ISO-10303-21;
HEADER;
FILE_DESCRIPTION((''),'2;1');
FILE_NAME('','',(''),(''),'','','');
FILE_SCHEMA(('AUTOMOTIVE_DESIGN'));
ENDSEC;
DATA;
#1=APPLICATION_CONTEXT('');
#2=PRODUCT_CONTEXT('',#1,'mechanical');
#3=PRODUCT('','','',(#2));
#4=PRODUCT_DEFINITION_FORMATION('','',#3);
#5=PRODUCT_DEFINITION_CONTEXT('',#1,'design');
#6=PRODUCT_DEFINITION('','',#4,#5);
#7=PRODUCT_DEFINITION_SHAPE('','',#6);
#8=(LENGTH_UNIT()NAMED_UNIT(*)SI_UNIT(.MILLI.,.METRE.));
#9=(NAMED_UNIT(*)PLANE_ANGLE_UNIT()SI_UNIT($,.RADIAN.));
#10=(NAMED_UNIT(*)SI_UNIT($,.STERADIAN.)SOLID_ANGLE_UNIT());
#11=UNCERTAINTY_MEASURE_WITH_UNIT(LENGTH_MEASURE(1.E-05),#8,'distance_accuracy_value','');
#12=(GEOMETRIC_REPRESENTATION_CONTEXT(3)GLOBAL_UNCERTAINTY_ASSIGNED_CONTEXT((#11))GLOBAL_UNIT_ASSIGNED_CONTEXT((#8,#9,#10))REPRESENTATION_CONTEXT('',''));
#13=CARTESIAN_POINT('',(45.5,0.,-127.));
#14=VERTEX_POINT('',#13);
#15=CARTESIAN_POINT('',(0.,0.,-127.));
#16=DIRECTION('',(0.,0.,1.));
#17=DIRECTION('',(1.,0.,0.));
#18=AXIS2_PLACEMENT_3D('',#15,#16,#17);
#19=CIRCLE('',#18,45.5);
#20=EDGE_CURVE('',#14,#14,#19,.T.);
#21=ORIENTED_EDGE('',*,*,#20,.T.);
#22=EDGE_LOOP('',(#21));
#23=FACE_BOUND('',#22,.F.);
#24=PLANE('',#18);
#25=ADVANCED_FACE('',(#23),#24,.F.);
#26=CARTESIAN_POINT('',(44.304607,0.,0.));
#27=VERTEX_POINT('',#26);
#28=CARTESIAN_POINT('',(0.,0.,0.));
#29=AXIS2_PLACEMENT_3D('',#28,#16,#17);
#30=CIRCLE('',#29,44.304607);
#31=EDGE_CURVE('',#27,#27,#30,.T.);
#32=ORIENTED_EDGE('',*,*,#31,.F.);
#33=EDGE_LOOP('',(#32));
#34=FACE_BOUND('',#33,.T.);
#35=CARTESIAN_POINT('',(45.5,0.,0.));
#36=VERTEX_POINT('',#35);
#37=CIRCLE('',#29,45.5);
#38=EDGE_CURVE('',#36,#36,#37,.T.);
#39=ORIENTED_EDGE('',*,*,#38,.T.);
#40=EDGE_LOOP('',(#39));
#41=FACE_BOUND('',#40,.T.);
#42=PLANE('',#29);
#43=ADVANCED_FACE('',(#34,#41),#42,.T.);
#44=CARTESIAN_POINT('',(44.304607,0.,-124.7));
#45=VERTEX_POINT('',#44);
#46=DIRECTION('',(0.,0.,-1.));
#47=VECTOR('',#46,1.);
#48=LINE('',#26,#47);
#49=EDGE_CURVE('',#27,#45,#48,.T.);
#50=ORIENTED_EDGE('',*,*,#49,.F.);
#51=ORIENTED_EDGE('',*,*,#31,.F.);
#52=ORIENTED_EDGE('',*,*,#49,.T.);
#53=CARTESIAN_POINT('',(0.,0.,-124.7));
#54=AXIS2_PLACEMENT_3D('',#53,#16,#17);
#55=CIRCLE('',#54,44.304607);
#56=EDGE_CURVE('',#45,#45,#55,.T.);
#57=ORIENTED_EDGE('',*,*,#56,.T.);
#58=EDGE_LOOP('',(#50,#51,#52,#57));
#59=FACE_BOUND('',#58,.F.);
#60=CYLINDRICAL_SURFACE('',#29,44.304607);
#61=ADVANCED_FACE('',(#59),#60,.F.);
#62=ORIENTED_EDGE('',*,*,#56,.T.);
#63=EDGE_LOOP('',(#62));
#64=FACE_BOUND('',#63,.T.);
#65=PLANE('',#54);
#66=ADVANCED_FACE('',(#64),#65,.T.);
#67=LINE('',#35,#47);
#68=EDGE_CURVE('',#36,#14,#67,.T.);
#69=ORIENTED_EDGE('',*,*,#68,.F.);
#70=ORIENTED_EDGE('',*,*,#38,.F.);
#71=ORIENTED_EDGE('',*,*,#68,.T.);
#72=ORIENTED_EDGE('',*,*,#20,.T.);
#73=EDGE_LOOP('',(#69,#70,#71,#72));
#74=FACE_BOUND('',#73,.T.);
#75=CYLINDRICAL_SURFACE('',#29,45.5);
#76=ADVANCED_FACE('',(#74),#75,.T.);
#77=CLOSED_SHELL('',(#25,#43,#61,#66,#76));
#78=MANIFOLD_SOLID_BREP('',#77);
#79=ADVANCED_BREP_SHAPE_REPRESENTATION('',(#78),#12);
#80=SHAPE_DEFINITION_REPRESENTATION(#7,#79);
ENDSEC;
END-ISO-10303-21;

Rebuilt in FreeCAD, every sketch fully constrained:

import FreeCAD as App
import Part
import Sketcher
Q = App.Units.Quantity

doc = App.newDocument("Part")
params = doc.addObject("Spreadsheet::Sheet", "Params")
for row, (alias, value) in enumerate([
    ("sketch1_diameter", "91 mm"),
    ("pad1_length", "127 mm"),
    ("pocket1_length", "124.7 mm"),
], start=1):
    params.set(f"A{row}", alias)
    params.set(f"B{row}", "=" + value)
    params.setAlias(f"B{row}", alias)

body = doc.addObject("PartDesign::Body", "Body")

# Sketch on XY plane
sketch1 = body.newObject("Sketcher::SketchObject", "Sketch")
sketch1.AttachmentSupport = (doc.getObject("XY_Plane"), [""])
sketch1.MapMode = "FlatFace"
sketch1.addGeometry(Part.Circle(App.Vector(0, 0, 0), App.Vector(0, 0, 1), 45.5), False)
sketch1.addConstraint([
    Sketcher.Constraint("Coincident", 0, 3, -1, 1),
    Sketcher.Constraint("Diameter", 0, Q("91 mm")),
])
sketch1.setExpression("Constraints[1]", "Params.sketch1_diameter")
pad1 = body.newObject("PartDesign::Pad", "Pad")
pad1.Profile = sketch1
pad1.setExpression("Length", "Params.pad1_length")
pad1.Reversed = True

# Sketch on XY plane
sketch2 = body.newObject("Sketcher::SketchObject", "Sketch001")
sketch2.AttachmentSupport = (doc.getObject("XY_Plane"), [""])
sketch2.MapMode = "FlatFace"
sketch2.addGeometry(Part.Circle(App.Vector(0, 0, 0), App.Vector(0, 0, 1), 44.304607), False)
sketch2.addConstraint([
    Sketcher.Constraint("Coincident", 0, 3, -1, 1),
    Sketcher.Constraint("Diameter", 0, Q("88.609214 mm")),
])
pocket1 = body.newObject("PartDesign::Pocket", "Pocket")
pocket1.Profile = sketch2
pocket1.setExpression("Length", "Params.pocket1_length")

doc.recompute()
